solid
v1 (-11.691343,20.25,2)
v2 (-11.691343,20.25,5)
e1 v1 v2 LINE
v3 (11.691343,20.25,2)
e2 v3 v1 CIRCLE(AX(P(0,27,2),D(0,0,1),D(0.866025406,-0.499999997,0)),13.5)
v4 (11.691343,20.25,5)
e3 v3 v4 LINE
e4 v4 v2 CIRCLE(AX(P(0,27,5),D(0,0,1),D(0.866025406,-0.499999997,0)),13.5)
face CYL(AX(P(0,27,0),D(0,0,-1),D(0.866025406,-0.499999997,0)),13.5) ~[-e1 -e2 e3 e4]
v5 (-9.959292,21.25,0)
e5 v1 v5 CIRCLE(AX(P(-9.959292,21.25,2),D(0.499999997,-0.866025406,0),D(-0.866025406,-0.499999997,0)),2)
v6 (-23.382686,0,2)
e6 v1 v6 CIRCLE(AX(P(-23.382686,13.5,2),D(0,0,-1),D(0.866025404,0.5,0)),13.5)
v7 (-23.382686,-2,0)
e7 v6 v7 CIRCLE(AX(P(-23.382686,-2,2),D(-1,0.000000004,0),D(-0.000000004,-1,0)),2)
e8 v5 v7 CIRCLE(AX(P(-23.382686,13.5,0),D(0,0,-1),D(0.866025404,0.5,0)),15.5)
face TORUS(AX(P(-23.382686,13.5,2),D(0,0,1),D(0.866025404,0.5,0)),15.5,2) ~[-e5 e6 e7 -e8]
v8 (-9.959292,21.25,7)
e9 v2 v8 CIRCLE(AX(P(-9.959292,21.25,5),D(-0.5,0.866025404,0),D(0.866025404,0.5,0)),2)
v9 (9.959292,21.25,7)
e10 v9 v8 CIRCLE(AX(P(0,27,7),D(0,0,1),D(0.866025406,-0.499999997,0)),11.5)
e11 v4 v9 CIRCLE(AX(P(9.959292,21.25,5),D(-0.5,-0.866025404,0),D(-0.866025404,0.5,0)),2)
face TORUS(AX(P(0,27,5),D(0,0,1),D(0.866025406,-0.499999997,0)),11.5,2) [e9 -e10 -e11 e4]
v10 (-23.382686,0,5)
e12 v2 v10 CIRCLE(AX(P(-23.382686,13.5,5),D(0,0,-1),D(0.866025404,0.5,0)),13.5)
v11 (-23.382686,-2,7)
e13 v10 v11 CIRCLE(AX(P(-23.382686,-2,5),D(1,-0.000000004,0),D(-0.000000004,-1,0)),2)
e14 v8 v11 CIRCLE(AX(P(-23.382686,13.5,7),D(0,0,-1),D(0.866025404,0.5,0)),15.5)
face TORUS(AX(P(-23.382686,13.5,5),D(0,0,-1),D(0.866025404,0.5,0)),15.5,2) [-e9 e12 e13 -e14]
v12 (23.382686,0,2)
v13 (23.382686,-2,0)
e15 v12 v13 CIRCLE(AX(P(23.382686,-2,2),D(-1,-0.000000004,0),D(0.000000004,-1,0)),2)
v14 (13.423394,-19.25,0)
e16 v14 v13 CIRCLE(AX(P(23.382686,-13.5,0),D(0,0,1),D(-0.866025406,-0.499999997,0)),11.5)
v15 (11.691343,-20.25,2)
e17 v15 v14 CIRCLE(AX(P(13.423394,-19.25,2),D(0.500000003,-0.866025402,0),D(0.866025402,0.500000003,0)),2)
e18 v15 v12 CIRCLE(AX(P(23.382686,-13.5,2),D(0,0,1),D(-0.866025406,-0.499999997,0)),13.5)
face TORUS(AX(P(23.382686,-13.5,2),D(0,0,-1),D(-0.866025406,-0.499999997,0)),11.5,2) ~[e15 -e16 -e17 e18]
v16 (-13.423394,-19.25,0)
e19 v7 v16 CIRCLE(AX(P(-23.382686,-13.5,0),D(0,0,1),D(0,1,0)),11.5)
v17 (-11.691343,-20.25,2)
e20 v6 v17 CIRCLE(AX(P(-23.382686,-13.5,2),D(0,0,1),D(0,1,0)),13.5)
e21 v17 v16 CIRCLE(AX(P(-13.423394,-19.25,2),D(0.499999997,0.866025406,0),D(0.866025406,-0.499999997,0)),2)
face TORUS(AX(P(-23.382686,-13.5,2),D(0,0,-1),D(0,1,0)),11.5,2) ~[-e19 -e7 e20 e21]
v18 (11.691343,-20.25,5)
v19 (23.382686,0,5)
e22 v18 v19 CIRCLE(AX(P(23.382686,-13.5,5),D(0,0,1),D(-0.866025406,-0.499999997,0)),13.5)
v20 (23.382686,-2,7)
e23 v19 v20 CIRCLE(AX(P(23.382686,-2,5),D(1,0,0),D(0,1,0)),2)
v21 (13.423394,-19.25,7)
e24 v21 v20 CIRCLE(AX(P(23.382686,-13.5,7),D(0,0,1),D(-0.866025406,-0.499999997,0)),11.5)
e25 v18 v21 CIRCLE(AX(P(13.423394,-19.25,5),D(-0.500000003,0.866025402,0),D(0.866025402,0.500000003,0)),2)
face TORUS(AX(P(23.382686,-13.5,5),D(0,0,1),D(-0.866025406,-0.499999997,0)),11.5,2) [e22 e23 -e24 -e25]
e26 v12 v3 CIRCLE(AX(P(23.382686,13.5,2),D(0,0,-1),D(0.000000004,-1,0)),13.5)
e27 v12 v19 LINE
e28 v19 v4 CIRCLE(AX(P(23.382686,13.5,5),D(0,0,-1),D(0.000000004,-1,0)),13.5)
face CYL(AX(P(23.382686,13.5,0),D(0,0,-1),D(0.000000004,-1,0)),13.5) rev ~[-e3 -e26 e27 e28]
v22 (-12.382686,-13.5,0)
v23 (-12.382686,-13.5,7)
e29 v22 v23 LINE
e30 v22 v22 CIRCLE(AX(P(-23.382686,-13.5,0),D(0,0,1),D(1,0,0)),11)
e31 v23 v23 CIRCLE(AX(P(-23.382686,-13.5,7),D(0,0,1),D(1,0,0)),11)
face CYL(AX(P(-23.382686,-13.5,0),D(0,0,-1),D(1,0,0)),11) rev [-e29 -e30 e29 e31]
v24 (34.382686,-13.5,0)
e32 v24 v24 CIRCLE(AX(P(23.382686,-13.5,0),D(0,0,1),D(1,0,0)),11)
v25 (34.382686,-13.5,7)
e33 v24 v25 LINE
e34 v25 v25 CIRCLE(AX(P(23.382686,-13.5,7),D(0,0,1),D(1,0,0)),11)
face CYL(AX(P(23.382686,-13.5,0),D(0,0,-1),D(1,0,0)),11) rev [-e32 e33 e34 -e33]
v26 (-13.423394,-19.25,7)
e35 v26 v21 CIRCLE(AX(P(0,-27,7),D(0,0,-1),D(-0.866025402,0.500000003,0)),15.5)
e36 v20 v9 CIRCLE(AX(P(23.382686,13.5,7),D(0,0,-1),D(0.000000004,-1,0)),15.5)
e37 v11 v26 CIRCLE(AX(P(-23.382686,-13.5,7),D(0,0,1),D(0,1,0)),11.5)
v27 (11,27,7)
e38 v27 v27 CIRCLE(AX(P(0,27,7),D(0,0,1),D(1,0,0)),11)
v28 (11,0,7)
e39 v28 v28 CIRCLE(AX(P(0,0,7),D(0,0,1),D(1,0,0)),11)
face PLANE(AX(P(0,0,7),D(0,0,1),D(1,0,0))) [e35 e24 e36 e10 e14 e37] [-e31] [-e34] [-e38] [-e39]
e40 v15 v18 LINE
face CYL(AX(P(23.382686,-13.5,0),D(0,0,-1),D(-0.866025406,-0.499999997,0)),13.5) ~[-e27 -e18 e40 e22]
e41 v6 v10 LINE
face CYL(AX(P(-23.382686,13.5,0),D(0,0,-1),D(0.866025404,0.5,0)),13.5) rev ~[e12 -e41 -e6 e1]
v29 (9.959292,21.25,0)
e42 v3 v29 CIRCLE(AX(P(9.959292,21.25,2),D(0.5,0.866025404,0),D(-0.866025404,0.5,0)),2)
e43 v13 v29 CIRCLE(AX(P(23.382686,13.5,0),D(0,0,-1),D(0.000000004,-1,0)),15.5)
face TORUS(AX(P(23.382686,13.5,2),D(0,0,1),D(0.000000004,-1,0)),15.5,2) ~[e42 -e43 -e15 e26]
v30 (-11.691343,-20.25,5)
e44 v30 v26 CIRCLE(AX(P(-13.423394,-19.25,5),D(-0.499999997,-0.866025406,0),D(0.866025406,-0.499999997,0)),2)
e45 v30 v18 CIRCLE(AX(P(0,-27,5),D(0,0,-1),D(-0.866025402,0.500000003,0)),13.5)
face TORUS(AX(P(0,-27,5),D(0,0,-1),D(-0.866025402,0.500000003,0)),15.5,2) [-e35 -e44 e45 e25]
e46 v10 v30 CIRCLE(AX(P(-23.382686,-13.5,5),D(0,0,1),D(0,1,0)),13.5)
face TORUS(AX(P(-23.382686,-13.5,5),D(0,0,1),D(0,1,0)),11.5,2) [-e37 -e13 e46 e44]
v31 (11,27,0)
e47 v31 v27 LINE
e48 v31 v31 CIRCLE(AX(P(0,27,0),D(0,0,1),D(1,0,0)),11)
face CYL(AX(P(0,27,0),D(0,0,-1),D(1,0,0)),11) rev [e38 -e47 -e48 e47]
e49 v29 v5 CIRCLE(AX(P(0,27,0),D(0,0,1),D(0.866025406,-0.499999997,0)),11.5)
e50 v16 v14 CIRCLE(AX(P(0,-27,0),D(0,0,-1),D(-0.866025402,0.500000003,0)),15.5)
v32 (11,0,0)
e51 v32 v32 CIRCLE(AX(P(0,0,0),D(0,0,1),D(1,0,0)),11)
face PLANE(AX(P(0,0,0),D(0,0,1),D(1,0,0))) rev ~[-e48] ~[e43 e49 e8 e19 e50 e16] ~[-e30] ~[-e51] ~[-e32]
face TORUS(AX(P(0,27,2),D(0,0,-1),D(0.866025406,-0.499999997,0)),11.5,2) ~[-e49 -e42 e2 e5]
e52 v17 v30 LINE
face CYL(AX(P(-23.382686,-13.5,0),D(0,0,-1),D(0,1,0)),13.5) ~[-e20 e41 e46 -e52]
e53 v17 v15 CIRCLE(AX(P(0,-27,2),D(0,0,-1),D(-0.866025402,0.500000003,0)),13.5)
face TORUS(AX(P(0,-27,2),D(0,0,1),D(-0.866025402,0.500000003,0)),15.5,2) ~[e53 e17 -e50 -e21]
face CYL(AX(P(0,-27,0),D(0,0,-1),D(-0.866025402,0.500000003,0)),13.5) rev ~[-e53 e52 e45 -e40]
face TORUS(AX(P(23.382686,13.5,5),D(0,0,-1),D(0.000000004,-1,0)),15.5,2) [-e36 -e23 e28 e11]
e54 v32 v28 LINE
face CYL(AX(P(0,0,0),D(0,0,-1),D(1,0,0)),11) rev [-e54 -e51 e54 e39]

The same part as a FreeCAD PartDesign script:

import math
import FreeCAD as App
import Part
import Sketcher

V = App.Vector


def edges_at(feature, points):
    """Names of the edges that pass closest to the given points."""
    edges = feature.Shape.Edges
    near = lambda p: min(range(len(edges)), key=lambda i: edges[i].distToShape(Part.Vertex(*p))[0])
    return sorted({f"Edge{near(p) + 1}" for p in points})

doc = App.newDocument("Part")
params = doc.addObject("Spreadsheet::Sheet", "Params")
for row, (alias, value) in enumerate([
    ("sketch1_diameter", "22 mm"),
    ("sketch1_radius", "13.5 mm"),
    ("pad1_length", "7 mm"),
    ("fillet_radius", "2 mm"),
    ("fillet2_radius", "2 mm"),
], start=1):
    params.set(f"A{row}", alias)
    params.set(f"B{row}", "=" + value)
    params.setAlias(f"B{row}", alias)

body = doc.addObject("PartDesign::Body", "Body")

# Sketch on XY plane
sketch1 = doc.addObject("Sketcher::SketchObject", "Sketch")
body.addObject(sketch1)
sketch1.AttachmentSupport = (doc.XY_Plane, [""])
sketch1.MapMode = "FlatFace"
sketch1.addGeometry([
    Part.ArcOfCircle(Part.Circle(V(23, 14, 0), V(0, 0, 1), 14), math.radians(150), math.radians(270)),  # 0
    Part.ArcOfCircle(Part.Circle(V(0, 27, 0), V(0, 0, 1), 14), math.radians(-30), math.radians(210)),  # 1
    Part.ArcOfCircle(Part.Circle(V(-23, 14, 0), V(0, 0, 1), 14), math.radians(-90), math.radians(30)),  # 2
    Part.ArcOfCircle(Part.Circle(V(-23, -14, 0), V(0, 0, 1), 14), math.radians(90), math.radians(330)),  # 3
    Part.ArcOfCircle(Part.Circle(V(0, -27, 0), V(0, 0, 1), 14), math.radians(30), math.radians(150)),  # 4
    Part.ArcOfCircle(Part.Circle(V(23, -14, 0), V(0, 0, 1), 14), math.radians(-150), math.radians(90)),  # 5
    Part.Circle(V(-23, -14, 0), V(0, 0, 1), 11),  # 6
    Part.Circle(V(23, -14, 0), V(0, 0, 1), 11),  # 7
    Part.Circle(V(0, 0, 0), V(0, 0, 1), 11),  # 8
    Part.Circle(V(0, 27, 0), V(0, 0, 1), 11),  # 9
], False)
sketch1.addConstraint([
    Sketcher.Constraint("Tangent", 0, 1, 1, 1),
    Sketcher.Constraint("Tangent", 1, 2, 2, 2),
    Sketcher.Constraint("Tangent", 2, 1, 3, 1),
    Sketcher.Constraint("Tangent", 3, 2, 4, 2),
    Sketcher.Constraint("Tangent", 4, 1, 5, 1),
    Sketcher.Constraint("Tangent", 5, 2, 0, 2),
    Sketcher.Constraint("Coincident", 8, 3, -1, 1),
    Sketcher.Constraint("Coincident", 6, 3, 3, 3),
    Sketcher.Constraint("Coincident", 7, 3, 5, 3),
    Sketcher.Constraint("Coincident", 9, 3, 1, 3),
    Sketcher.Constraint("Equal", 0, 1),
    Sketcher.Constraint("Equal", 1, 2),
    Sketcher.Constraint("Equal", 2, 3),
    Sketcher.Constraint("Equal", 3, 4),
    Sketcher.Constraint("Equal", 4, 5),
    Sketcher.Constraint("Equal", 6, 7),
    Sketcher.Constraint("Equal", 7, 8),
    Sketcher.Constraint("Equal", 8, 9),
    Sketcher.Constraint("Symmetric", 0, 3, 3, 3, -1, 1),
    Sketcher.Constraint("Symmetric", 0, 3, 2, 3, -2),
    Sketcher.Constraint("PointOnObject", 4, 3, -2),
    Sketcher.Constraint("Diameter", 6, 22.0),
    Sketcher.Constraint("Radius", 0, 13.5),
    Sketcher.Constraint("DistanceY", -1, 1, 1, 3, 27.0),
])
sketch1.setExpression("Constraints[21]", "Params.sketch1_diameter")
sketch1.setExpression("Constraints[22]", "Params.sketch1_radius")
pad1 = doc.addObject("PartDesign::Pad", "Pad")
body.addObject(pad1)
pad1.Profile = sketch1
pad1.setExpression("Length", "Params.pad1_length")
doc.recompute()

fillet = doc.addObject("PartDesign::Fillet", "Fillet")
body.addObject(fillet)
fillet.Base = (pad1, edges_at(pad1, [(-11.691, 6.75, 7), (11.691, 6.75, 7), (0, -13.5, 7)]))
fillet.setExpression("Radius", "Params.fillet_radius")
doc.recompute()

fillet2 = doc.addObject("PartDesign::Fillet", "Fillet001")
body.addObject(fillet2)
fillet2.Base = (fillet, edges_at(fillet, [(11.691, 6.75, 0)]))
fillet2.setExpression("Radius", "Params.fillet2_radius")

doc.recompute()
